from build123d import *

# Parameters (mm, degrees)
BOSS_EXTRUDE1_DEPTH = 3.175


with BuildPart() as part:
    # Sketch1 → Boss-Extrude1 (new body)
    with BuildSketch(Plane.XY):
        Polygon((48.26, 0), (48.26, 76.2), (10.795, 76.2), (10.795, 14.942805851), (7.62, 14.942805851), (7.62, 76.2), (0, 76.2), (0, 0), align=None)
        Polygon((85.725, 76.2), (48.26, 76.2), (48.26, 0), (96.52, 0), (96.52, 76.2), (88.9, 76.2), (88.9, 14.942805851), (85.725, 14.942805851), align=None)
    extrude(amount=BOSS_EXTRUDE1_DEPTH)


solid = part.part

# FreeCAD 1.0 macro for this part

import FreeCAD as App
import Part
import Sketcher

V = App.Vector
Q = App.Units.Quantity


def add_polygon(sketch, points):
    """Adds a closed chain of lines whose ends are joined by coincident constraints."""
    first, n = sketch.GeometryCount, len(points)
    for a, b in zip(points, points[1:] + points[:1]):
        sketch.addGeometry(Part.LineSegment(App.Vector(*a, 0), App.Vector(*b, 0)), False)
    for i in range(n):
        sketch.addConstraint(Sketcher.Constraint("Coincident", first + i, 2, first + (i + 1) % n, 1))

doc = App.newDocument("Part")
params = doc.addObject("Spreadsheet::Sheet", "Params")
for row, (alias, value) in enumerate([
    ("sketch1_height", "3 in"),
    ("sketch1_width", "0.3 in"),
    ("sketch1_width2", "3.8 in"),
    ("sketch1_width3", "2.95 in"),
    ("pad1_length", "0.125 in"),
], start=1):
    params.set(f"A{row}", alias)
    params.set(f"B{row}", "=" + value)
    params.setAlias(f"B{row}", alias)

body = doc.addObject("PartDesign::Body", "Body")

# Sketch on XY plane
sketch1 = doc.addObject("Sketcher::SketchObject", "Sketch")
body.addObject(sketch1)
sketch1.AttachmentSupport = (doc.XY_Plane, [""])
sketch1.MapMode = "FlatFace"
add_polygon(sketch1, [(10.795, 76.2), (10.795, 14.942806), (7.62, 14.942806), (7.62, 76.2), (0, 76.2), (0, 0), (96.52, 0), (96.52, 76.2), (88.9, 76.2), (88.9, 14.942806), (85.725, 14.942806), (85.725, 76.2)])  # lines 0-11
sketch1.addConstraint([
    Sketcher.Constraint("Vertical", 0),
    Sketcher.Constraint("Horizontal", 1),
    Sketcher.Constraint("Vertical", 2),
    Sketcher.Constraint("Horizontal", 3),
    Sketcher.Constraint("Vertical", 4),
    Sketcher.Constraint("Horizontal", 5),
    Sketcher.Constraint("Vertical", 6),
    Sketcher.Constraint("Horizontal", 7),
    Sketcher.Constraint("Vertical", 8),
    Sketcher.Constraint("Horizontal", 9),
    Sketcher.Constraint("Vertical", 10),
    Sketcher.Constraint("Horizontal", 11),
    Sketcher.Constraint("Coincident", 4, 2, -1, 1),
    Sketcher.Constraint("Horizontal", 3, 2, 6, 2),
    Sketcher.Constraint("Horizontal", 1, 2, 8, 2),
    Sketcher.Constraint("Horizontal", 7, 2, 10, 2),
    Sketcher.Constraint("Equal", 3, 7),
    Sketcher.Constraint("Equal", 1, 9),
    Sketcher.Constraint("DistanceY", 4, 2, 4, 1, Q("3 in")),
    Sketcher.Constraint("DistanceX", 3, 2, 3, 1, Q("0.3 in")),
    Sketcher.Constraint("DistanceX", 5, 1, 5, 2, Q("3.8 in")),
    Sketcher.Constraint("DistanceX", 11, 2, 11, 1, Q("2.95 in")),
    Sketcher.Constraint("DistanceY", 0, 2, 0, 1, 61.257194),
])
sketch1.setExpression("Constraints[30]", "Params.sketch1_height")
sketch1.setExpression("Constraints[31]", "Params.sketch1_width")
sketch1.setExpression("Constraints[32]", "Params.sketch1_width2")
sketch1.setExpression("Constraints[33]", "Params.sketch1_width3")
pad1 = doc.addObject("PartDesign::Pad", "Pad")
body.addObject(pad1)
pad1.Profile = sketch1
pad1.setExpression("Length", "Params.pad1_length")

doc.recompute()
